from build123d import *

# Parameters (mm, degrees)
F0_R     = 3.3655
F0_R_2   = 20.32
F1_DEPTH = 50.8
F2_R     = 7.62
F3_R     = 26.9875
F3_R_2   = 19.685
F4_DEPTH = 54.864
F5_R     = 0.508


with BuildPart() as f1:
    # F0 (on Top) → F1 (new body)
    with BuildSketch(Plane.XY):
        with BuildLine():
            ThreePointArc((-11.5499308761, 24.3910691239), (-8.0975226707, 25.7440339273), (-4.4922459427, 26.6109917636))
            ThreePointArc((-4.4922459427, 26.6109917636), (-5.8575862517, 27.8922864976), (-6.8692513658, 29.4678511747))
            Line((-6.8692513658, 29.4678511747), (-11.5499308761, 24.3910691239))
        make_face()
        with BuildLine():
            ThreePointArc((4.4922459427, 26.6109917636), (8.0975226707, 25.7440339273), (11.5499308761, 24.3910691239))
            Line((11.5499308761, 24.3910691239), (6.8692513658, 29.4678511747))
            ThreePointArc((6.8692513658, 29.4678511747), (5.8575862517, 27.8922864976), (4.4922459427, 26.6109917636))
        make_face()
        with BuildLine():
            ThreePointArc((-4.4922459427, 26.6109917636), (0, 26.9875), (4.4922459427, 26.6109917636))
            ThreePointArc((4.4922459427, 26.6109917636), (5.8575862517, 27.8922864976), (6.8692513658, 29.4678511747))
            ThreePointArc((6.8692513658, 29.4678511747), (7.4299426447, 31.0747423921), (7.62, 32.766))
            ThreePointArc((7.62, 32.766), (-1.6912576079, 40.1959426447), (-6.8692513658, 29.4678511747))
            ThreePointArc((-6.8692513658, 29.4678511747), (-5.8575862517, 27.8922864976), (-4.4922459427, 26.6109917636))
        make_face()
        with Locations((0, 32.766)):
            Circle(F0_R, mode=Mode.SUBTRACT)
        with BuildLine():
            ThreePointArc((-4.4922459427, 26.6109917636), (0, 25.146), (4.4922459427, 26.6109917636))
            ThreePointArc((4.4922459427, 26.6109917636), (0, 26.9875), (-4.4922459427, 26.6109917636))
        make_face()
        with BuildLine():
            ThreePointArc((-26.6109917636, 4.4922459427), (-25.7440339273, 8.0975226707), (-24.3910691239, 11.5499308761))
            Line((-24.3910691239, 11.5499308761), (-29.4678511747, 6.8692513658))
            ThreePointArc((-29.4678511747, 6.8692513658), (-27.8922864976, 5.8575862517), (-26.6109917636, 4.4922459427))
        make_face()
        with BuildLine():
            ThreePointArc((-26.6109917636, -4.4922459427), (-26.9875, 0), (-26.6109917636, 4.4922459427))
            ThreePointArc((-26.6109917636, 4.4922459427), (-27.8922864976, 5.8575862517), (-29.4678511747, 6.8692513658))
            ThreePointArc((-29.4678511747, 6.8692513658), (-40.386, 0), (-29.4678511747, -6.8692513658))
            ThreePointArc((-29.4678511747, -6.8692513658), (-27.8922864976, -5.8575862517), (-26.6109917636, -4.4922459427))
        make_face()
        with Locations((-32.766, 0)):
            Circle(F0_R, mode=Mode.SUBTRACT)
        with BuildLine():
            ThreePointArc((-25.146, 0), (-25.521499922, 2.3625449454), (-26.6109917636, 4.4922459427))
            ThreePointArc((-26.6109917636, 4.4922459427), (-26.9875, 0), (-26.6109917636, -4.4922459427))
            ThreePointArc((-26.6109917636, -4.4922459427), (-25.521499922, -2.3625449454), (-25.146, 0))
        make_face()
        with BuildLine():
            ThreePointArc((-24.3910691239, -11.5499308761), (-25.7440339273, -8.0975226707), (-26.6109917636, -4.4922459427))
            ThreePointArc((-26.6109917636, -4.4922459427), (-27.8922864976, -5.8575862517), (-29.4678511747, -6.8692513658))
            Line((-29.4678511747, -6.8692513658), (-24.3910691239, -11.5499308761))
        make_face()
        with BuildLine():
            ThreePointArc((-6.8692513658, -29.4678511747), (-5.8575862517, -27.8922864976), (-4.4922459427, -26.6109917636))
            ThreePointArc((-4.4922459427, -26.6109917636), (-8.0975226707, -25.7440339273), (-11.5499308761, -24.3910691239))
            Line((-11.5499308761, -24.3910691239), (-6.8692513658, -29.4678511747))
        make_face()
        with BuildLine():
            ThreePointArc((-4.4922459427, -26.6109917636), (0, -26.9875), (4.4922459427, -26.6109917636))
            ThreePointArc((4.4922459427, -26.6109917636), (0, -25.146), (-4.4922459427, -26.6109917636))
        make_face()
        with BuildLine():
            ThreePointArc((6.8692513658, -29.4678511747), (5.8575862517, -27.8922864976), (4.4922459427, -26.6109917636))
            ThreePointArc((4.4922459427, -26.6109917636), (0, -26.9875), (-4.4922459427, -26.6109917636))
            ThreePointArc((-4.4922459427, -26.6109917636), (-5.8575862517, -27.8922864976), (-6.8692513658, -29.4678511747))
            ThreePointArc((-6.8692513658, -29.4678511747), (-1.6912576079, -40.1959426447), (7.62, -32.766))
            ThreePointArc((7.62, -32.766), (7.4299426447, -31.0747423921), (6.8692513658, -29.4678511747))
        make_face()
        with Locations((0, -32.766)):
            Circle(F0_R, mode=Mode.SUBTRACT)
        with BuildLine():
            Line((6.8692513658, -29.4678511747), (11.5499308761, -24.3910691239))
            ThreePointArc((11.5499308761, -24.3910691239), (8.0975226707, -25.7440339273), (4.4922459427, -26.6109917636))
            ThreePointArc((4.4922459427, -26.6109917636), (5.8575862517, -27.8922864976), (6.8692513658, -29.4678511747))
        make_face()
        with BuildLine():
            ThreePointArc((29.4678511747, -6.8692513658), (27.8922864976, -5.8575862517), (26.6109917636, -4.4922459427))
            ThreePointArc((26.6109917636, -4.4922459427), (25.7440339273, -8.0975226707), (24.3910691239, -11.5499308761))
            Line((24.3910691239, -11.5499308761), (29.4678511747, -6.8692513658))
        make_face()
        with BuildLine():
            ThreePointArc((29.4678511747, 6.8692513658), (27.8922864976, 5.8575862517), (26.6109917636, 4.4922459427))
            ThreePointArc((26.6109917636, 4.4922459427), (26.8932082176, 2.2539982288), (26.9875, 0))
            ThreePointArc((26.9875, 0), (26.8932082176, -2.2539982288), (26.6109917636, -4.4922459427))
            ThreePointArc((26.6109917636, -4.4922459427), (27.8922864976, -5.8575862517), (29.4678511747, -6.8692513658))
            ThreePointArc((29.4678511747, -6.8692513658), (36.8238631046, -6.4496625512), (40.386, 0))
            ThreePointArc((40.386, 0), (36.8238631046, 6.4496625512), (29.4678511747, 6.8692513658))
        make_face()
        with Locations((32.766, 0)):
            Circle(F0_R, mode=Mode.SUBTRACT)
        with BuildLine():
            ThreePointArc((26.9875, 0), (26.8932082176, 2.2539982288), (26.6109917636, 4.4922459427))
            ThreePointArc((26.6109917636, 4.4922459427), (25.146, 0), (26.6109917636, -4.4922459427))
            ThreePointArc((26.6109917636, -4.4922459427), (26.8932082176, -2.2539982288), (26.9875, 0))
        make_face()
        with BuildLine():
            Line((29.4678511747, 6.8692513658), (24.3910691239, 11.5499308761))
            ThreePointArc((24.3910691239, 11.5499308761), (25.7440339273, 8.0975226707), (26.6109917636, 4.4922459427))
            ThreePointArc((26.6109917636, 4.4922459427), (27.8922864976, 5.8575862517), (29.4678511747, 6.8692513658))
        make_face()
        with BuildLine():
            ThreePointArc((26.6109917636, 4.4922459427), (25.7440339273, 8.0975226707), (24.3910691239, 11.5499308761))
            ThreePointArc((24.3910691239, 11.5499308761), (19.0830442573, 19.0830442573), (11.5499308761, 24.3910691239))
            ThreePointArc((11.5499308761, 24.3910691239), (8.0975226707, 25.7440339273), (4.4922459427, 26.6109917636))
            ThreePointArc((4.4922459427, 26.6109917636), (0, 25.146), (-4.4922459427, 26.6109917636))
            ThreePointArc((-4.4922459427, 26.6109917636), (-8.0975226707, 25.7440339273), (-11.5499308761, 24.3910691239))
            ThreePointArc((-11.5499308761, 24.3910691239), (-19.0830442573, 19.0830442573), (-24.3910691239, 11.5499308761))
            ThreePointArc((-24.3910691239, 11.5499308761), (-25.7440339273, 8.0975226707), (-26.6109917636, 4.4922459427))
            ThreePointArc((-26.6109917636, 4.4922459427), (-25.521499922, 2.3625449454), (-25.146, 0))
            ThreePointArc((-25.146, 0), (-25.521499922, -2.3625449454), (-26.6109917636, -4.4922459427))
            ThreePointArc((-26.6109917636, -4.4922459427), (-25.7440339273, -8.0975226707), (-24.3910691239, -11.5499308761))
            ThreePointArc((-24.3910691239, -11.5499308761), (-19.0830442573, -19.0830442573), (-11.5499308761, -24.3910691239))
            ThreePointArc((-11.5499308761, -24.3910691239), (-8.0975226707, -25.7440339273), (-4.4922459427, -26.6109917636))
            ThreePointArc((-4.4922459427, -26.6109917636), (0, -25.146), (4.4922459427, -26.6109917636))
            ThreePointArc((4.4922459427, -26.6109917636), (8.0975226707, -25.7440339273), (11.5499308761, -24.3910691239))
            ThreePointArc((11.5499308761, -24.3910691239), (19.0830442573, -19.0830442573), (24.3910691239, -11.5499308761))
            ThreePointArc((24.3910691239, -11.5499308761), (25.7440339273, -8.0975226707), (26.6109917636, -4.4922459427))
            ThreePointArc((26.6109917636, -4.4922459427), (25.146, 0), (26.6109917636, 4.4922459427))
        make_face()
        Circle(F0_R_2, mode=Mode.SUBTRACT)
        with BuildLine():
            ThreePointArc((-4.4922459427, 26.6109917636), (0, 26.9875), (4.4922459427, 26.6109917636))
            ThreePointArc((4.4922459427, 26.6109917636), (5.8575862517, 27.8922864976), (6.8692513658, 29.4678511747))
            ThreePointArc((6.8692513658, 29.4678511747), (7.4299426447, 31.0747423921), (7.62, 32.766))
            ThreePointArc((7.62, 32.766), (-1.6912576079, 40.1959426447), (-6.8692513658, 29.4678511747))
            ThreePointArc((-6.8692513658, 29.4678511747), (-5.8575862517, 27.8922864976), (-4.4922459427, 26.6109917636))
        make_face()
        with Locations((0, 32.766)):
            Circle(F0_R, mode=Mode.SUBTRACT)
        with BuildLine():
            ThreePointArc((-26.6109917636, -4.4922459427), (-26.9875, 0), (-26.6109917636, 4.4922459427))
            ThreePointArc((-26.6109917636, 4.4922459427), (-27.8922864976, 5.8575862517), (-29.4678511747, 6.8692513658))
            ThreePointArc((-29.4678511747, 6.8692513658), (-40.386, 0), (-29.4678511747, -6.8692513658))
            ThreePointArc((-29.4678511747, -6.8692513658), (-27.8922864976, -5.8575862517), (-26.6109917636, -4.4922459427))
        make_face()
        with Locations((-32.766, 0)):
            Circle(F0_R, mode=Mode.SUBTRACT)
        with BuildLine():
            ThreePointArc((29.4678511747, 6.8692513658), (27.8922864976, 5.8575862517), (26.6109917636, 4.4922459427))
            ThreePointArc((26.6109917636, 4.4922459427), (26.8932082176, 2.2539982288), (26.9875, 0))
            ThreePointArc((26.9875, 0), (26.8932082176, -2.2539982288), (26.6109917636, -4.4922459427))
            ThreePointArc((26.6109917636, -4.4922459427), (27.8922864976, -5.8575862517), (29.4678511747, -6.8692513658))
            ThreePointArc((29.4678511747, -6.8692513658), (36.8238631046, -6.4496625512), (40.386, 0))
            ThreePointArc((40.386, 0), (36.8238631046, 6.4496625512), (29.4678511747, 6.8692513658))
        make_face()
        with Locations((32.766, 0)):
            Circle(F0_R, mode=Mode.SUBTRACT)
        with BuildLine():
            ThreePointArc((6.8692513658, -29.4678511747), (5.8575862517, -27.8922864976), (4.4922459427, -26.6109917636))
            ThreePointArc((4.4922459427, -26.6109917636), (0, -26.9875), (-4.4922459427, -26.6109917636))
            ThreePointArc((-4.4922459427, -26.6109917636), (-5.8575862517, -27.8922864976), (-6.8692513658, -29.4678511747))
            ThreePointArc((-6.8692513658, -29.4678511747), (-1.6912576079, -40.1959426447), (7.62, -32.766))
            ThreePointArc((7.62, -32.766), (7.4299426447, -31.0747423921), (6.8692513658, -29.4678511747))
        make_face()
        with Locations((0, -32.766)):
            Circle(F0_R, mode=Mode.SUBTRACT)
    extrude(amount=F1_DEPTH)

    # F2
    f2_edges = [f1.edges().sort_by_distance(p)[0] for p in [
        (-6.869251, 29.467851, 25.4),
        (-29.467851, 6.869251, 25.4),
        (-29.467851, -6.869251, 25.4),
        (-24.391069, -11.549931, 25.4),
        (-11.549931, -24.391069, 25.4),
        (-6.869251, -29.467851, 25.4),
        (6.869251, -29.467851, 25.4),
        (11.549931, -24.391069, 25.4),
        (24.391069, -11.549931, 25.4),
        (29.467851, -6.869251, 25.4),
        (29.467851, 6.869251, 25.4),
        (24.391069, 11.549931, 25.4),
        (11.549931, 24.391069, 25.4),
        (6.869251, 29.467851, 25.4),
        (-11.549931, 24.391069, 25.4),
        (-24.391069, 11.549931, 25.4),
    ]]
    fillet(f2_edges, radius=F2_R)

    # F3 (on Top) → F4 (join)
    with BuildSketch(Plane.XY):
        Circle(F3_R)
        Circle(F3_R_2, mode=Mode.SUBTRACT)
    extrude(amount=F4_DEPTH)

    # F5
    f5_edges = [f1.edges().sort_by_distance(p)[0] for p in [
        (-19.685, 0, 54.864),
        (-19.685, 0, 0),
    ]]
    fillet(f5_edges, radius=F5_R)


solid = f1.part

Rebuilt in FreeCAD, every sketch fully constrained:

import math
import FreeCAD as App
import Part
import Sketcher
from FreeCAD import Vector
Q = App.Units.Quantity


def edges_at(feature, points):
    """Names of the edges that pass closest to the given points."""
    edges = feature.Shape.Edges
    near = lambda p: min(range(len(edges)), key=lambda i: edges[i].distToShape(Part.Vertex(*p))[0])
    return sorted({f"Edge{near(p) + 1}" for p in points})

doc = App.newDocument("Part")
body = doc.addObject("PartDesign::Body", "Body")

# Sketch on XY plane
sketch1 = body.newObject("Sketcher::SketchObject", "Sketch")
sketch1.AttachmentSupport = (doc.getObject("XY_Plane"), [""])
sketch1.MapMode = "FlatFace"
sketch1.addGeometry(Part.ArcOfCircle(Part.Circle(Vector(0, 0, 0), Vector(0, 0, 1), 27), math.radians(-65), math.radians(-25)), False)
sketch1.addGeometry(Part.LineSegment(Vector(24.4, -11.5, 0), Vector(29.5, -6.9, 0)), False)
sketch1.addGeometry(Part.ArcOfCircle(Part.Circle(Vector(32.8, 0, 0), Vector(0, 0, 1), 7.6), math.radians(-116), math.radians(0)), False)
sketch1.addGeometry(Part.ArcOfCircle(Part.Circle(Vector(32.8, 0, 0), Vector(0, 0, 1), 7.6), math.radians(0), math.radians(116)), False)
sketch1.addGeometry(Part.LineSegment(Vector(29.5, 6.9, 0), Vector(24.4, 11.5, 0)), False)
sketch1.addGeometry(Part.ArcOfCircle(Part.Circle(Vector(0, 0, 0), Vector(0, 0, 1), 27), math.radians(25), math.radians(65)), False)
sketch1.addGeometry(Part.LineSegment(Vector(11.5, 24.4, 0), Vector(6.9, 29.5, 0)), False)
sketch1.addGeometry(Part.ArcOfCircle(Part.Circle(Vector(0, 32.8, 0), Vector(0, 0, 1), 7.6), math.radians(-26), math.radians(0)), False)
sketch1.addGeometry(Part.ArcOfCircle(Part.Circle(Vector(0, 32.8, 0), Vector(0, 0, 1), 7.6), math.radians(0), math.radians(206)), False)
sketch1.addGeometry(Part.LineSegment(Vector(-6.9, 29.5, 0), Vector(-11.5, 24.4, 0)), False)
sketch1.addGeometry(Part.ArcOfCircle(Part.Circle(Vector(0, 0, 0), Vector(0, 0, 1), 27), math.radians(115), math.radians(155)), False)
sketch1.addGeometry(Part.LineSegment(Vector(-24.4, 11.5, 0), Vector(-29.5, 6.9, 0)), False)
sketch1.addGeometry(Part.ArcOfCircle(Part.Circle(Vector(-32.8, 0, 0), Vector(0, 0, 1), 7.6), math.radians(64), math.radians(296)), False)
sketch1.addGeometry(Part.LineSegment(Vector(-29.5, -6.9, 0), Vector(-24.4, -11.5, 0)), False)
sketch1.addGeometry(Part.ArcOfCircle(Part.Circle(Vector(0, 0, 0), Vector(0, 0, 1), 27), math.radians(-155), math.radians(-115)), False)
sketch1.addGeometry(Part.LineSegment(Vector(-11.5, -24.4, 0), Vector(-6.9, -29.5, 0)), False)
sketch1.addGeometry(Part.ArcOfCircle(Part.Circle(Vector(0, -32.8, 0), Vector(0, 0, 1), 7.6), math.radians(154), math.radians(360)), False)
sketch1.addGeometry(Part.ArcOfCircle(Part.Circle(Vector(0, -32.8, 0), Vector(0, 0, 1), 7.6), math.radians(0), math.radians(26)), False)
sketch1.addGeometry(Part.LineSegment(Vector(6.9, -29.5, 0), Vector(11.5, -24.4, 0)), False)
sketch1.addGeometry(Part.Circle(Vector(-32.8, 0, 0), Vector(0, 0, 1), 3.4), False)
sketch1.addGeometry(Part.Circle(Vector(0, -32.8, 0), Vector(0, 0, 1), 3.4), False)
sketch1.addGeometry(Part.Circle(Vector(32.8, 0, 0), Vector(0, 0, 1), 3.4), False)
sketch1.addGeometry(Part.Circle(Vector(0, 0, 0), Vector(0, 0, 1), 20.3), False)
sketch1.addGeometry(Part.Circle(Vector(0, 32.8, 0), Vector(0, 0, 1), 3.4), False)
sketch1.addConstraint(Sketcher.Constraint("Coincident", 0, 2, 1, 1))
sketch1.addConstraint(Sketcher.Constraint("Coincident", 1, 2, 2, 1))
sketch1.addConstraint(Sketcher.Constraint("Tangent", 2, 2, 3, 1))
sketch1.addConstraint(Sketcher.Constraint("Coincident", 3, 2, 4, 1))
sketch1.addConstraint(Sketcher.Constraint("Coincident", 4, 2, 5, 1))
sketch1.addConstraint(Sketcher.Constraint("Coincident", 5, 2, 6, 1))
sketch1.addConstraint(Sketcher.Constraint("Coincident", 6, 2, 7, 1))
sketch1.addConstraint(Sketcher.Constraint("Tangent", 7, 2, 8, 1))
sketch1.addConstraint(Sketcher.Constraint("Coincident", 8, 2, 9, 1))
sketch1.addConstraint(Sketcher.Constraint("Coincident", 9, 2, 10, 1))
sketch1.addConstraint(Sketcher.Constraint("Coincident", 10, 2, 11, 1))
sketch1.addConstraint(Sketcher.Constraint("Coincident", 11, 2, 12, 1))
sketch1.addConstraint(Sketcher.Constraint("Coincident", 12, 2, 13, 1))
sketch1.addConstraint(Sketcher.Constraint("Coincident", 13, 2, 14, 1))
sketch1.addConstraint(Sketcher.Constraint("Coincident", 14, 2, 15, 1))
sketch1.addConstraint(Sketcher.Constraint("Coincident", 15, 2, 16, 1))
sketch1.addConstraint(Sketcher.Constraint("Tangent", 16, 2, 17, 1))
sketch1.addConstraint(Sketcher.Constraint("Coincident", 17, 2, 18, 1))
sketch1.addConstraint(Sketcher.Constraint("Coincident", 18, 2, 0, 1))
sketch1.addConstraint(Sketcher.Constraint("Coincident", 0, 3, -1, 1))
sketch1.addConstraint(Sketcher.Constraint("Coincident", 5, 3, -1, 1))
sketch1.addConstraint(Sketcher.Constraint("Coincident", 10, 3, -1, 1))
sketch1.addConstraint(Sketcher.Constraint("Coincident", 14, 3, -1, 1))
sketch1.addConstraint(Sketcher.Constraint("Coincident", 22, 3, -1, 1))
sketch1.addConstraint(Sketcher.Constraint("Coincident", 19, 3, 12, 3))
sketch1.addConstraint(Sketcher.Constraint("Coincident", 20, 3, 16, 3))
sketch1.addConstraint(Sketcher.Constraint("Coincident", 21, 3, 2, 3))
sketch1.addConstraint(Sketcher.Constraint("Coincident", 23, 3, 7, 3))
sketch1.addConstraint(Sketcher.Constraint("Equal", 2, 3))
sketch1.addConstraint(Sketcher.Constraint("Equal", 0, 5))
sketch1.addConstraint(Sketcher.Constraint("Equal", 3, 7))
sketch1.addConstraint(Sketcher.Constraint("Equal", 7, 8))
sketch1.addConstraint(Sketcher.Constraint("Equal", 5, 10))
sketch1.addConstraint(Sketcher.Constraint("Equal", 8, 12))
sketch1.addConstraint(Sketcher.Constraint("Equal", 10, 14))
sketch1.addConstraint(Sketcher.Constraint("Equal", 12, 16))
sketch1.addConstraint(Sketcher.Constraint("Equal", 16, 17))
sketch1.addConstraint(Sketcher.Constraint("Equal", 19, 20))
sketch1.addConstraint(Sketcher.Constraint("Equal", 20, 21))
sketch1.addConstraint(Sketcher.Constraint("Equal", 21, 23))
sketch1.addConstraint(Sketcher.Constraint("Symmetric", 2, 3, 12, 3, -1, 1))
sketch1.addConstraint(Sketcher.Constraint("Symmetric", 7, 3, 16, 3, -1, 1))
sketch1.addConstraint(Sketcher.Constraint("Symmetric", 6, 2, 8, 2, -2))
sketch1.addConstraint(Sketcher.Constraint("Symmetric", 3, 2, 11, 2, -2))
sketch1.addConstraint(Sketcher.Constraint("PointOnObject", 2, 2, -1))
sketch1.addConstraint(Sketcher.Constraint("Perpendicular", 1, 6))
sketch1.addConstraint(Sketcher.Constraint("Perpendicular", 4, 9))
sketch1.addConstraint(Sketcher.Constraint("Perpendicular", 6, 11))
sketch1.addConstraint(Sketcher.Constraint("Perpendicular", 9, 13))
sketch1.addConstraint(Sketcher.Constraint("Perpendicular", 11, 15))
sketch1.addConstraint(Sketcher.Constraint("Perpendicular", 13, 18))
sketch1.addConstraint(Sketcher.Constraint("Horizontal", 23, 3, 7, 2))
sketch1.addConstraint(Sketcher.Constraint("Horizontal", 5, 2, 9, 2))
sketch1.addConstraint(Sketcher.Constraint("Horizontal", 1, 2, 12, 2))
sketch1.addConstraint(Sketcher.Constraint("Horizontal", 20, 3, 16, 2))
sketch1.addConstraint(Sketcher.Constraint("Horizontal", 15, 2, 17, 2))
sketch1.addConstraint(Sketcher.Constraint("Vertical", 1, 2, 3, 2))
sketch1.addConstraint(Sketcher.Constraint("Vertical", 9, 2, 14, 2))
sketch1.addConstraint(Sketcher.Constraint("Equal", 4, 6))
sketch1.addConstraint(Sketcher.Constraint("Diameter", 22, Q("1.6 in")))
sketch1.addConstraint(Sketcher.Constraint("Radius", 2, Q("0.3 in")))
sketch1.addConstraint(Sketcher.Constraint("Diameter", 19, Q("0.265 in")))
sketch1.addConstraint(Sketcher.Constraint("Radius", 0, Q("1.0625 in")))
sketch1.addConstraint(Sketcher.Constraint("DistanceX", -1, 1, 2, 3, Q("1.29 in")))
sketch1.addConstraint(Sketcher.Constraint("DistanceY", -1, 1, 7, 3, Q("1.29 in")))
sketch1.addConstraint(Sketcher.Constraint("Distance", 1, 6.90525))
sketch1.addConstraint(Sketcher.Constraint("DistanceX", -1, 1, 0, 2, 24.391069))
pad1 = body.newObject("PartDesign::Pad", "Pad")
pad1.Profile = sketch1
pad1.Length = Q("2 in")
doc.recompute()

fillet = body.newObject("PartDesign::Fillet", "Fillet")
fillet.Base = (pad1, edges_at(pad1, [
    (-6.869, 29.468, 25.4),
    (-29.468, 6.869, 25.4),
    (-29.468, -6.869, 25.4),
    (-24.391, -11.55, 25.4),
    (-11.55, -24.391, 25.4),
    (-6.869, -29.468, 25.4),
    (6.869, -29.468, 25.4),
    (11.55, -24.391, 25.4),
    (24.391, -11.55, 25.4),
    (29.468, -6.869, 25.4),
    (29.468, 6.869, 25.4),
    (24.391, 11.55, 25.4),
    (11.55, 24.391, 25.4),
    (6.869, 29.468, 25.4),
    (-11.55, 24.391, 25.4),
    (-24.391, 11.55, 25.4),
]))
fillet.Radius = Q("0.3 in")

# Sketch on XY plane
sketch2 = body.newObject("Sketcher::SketchObject", "Sketch001")
sketch2.AttachmentSupport = (doc.getObject("XY_Plane"), [""])
sketch2.MapMode = "FlatFace"
sketch2.addGeometry(Part.Circle(Vector(0, 0, 0), Vector(0, 0, 1), 27), False)
sketch2.addGeometry(Part.Circle(Vector(0, 0, 0), Vector(0, 0, 1), 20), False)
sketch2.addConstraint(Sketcher.Constraint("Coincident", 0, 3, -1, 1))
sketch2.addConstraint(Sketcher.Constraint("Coincident", 1, 3, -1, 1))
sketch2.addConstraint(Sketcher.Constraint("Diameter", 1, Q("1.55 in")))
sketch2.addConstraint(Sketcher.Constraint("Diameter", 0, Q("2.125 in")))
pad2 = body.newObject("PartDesign::Pad", "Pad001")
pad2.Profile = sketch2
pad2.Length = Q("2.16 in")
doc.recompute()

fillet2 = body.newObject("PartDesign::Fillet", "Fillet001")
fillet2.Base = (pad2, edges_at(pad2, [(-19.685, 0, 54.864), (-19.685, 0, 0)]))
fillet2.Radius = Q("0.02 in")

doc.recompute()
